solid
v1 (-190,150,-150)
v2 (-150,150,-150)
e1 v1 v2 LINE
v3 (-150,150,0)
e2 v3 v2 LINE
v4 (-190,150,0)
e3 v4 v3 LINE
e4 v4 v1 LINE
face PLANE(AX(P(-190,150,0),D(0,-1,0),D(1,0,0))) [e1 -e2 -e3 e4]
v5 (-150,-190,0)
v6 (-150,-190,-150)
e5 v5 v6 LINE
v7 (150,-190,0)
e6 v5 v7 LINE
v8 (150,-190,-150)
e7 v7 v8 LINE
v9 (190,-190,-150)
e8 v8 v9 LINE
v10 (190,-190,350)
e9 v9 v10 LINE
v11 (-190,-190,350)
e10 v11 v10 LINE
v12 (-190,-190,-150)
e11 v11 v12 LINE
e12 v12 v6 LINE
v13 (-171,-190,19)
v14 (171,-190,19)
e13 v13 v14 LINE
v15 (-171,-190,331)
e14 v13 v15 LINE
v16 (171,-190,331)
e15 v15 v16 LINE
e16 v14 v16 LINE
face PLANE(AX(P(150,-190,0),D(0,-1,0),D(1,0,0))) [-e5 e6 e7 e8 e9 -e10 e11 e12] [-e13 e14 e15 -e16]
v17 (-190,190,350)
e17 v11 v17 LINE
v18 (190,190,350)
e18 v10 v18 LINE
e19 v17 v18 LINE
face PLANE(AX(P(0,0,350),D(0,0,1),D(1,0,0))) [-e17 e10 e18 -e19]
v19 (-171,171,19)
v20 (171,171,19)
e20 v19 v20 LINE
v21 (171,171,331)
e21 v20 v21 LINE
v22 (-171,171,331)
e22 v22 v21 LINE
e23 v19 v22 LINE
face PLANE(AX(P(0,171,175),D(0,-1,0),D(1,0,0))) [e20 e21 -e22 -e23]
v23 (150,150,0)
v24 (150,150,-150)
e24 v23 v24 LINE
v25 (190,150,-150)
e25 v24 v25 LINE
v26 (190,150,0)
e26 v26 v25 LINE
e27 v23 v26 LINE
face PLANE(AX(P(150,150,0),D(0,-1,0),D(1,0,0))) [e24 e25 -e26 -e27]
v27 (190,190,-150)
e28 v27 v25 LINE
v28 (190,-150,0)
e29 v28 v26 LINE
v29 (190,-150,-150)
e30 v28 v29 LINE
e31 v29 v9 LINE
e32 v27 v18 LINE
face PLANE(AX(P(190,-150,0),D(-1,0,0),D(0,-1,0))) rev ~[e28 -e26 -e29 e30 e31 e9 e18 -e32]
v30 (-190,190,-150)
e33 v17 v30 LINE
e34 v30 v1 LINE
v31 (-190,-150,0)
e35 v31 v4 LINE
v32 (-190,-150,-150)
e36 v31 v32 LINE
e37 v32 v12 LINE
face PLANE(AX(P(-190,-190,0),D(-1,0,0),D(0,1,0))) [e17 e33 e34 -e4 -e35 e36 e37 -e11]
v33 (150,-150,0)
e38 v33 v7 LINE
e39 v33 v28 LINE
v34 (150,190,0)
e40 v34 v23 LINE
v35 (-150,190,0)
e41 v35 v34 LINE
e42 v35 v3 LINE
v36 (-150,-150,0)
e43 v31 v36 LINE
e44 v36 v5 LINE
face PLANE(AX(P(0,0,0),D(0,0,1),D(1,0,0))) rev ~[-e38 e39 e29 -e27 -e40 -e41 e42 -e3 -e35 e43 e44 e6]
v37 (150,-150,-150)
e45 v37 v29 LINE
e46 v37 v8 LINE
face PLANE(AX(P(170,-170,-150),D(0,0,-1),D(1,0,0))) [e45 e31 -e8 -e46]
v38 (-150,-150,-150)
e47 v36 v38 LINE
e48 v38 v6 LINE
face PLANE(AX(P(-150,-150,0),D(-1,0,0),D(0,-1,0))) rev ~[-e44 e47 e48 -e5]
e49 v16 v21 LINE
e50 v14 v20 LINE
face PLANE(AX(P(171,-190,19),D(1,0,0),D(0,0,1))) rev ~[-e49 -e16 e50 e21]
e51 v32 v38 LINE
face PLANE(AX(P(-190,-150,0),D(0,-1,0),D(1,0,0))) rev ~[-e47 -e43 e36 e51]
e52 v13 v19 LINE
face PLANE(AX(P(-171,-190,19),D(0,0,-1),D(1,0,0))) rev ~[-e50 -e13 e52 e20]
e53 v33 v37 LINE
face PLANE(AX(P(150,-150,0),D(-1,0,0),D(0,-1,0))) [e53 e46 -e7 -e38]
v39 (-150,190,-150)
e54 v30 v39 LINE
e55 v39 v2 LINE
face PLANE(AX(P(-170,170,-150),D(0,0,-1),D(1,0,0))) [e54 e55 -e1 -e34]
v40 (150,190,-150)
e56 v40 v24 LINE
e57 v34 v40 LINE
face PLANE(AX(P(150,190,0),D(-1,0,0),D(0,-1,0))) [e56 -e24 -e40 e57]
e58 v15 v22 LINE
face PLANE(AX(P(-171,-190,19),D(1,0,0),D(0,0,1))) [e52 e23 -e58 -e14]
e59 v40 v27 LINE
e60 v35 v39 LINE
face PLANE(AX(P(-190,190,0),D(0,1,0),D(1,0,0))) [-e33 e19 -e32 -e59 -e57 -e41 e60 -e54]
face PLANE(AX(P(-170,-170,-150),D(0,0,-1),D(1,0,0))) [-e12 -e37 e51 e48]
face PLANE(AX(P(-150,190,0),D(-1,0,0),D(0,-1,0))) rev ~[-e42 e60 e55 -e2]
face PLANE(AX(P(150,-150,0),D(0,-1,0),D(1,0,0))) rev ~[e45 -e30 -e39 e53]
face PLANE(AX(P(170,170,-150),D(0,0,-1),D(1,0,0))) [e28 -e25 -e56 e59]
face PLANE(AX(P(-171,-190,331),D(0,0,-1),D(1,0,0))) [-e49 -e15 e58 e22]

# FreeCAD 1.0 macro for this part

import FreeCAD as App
import Part
import Sketcher

V = App.Vector
Q = App.Units.Quantity

doc = App.newDocument("Part")
body = doc.addObject("PartDesign::Body", "Body")

# Sketch on XY plane
sketch1 = doc.addObject("Sketcher::SketchObject", "Sketch")
body.addObject(sketch1)
sketch1.AttachmentSupport = (doc.XY_Plane, [""])
sketch1.MapMode = "FlatFace"
sketch1.addGeometry(Part.LineSegment(V(-190, 190, 0), V(-190, -190, 0)), False)
sketch1.addGeometry(Part.LineSegment(V(-190, -190, 0), V(190, -190, 0)), False)
sketch1.addGeometry(Part.LineSegment(V(190, -190, 0), V(190, 190, 0)), False)
sketch1.addGeometry(Part.LineSegment(V(190, 190, 0), V(-190, 190, 0)), False)
sketch1.addConstraint(Sketcher.Constraint("Coincident", 0, 2, 1, 1))
sketch1.addConstraint(Sketcher.Constraint("Coincident", 1, 2, 2, 1))
sketch1.addConstraint(Sketcher.Constraint("Coincident", 2, 2, 3, 1))
sketch1.addConstraint(Sketcher.Constraint("Coincident", 3, 2, 0, 1))
sketch1.addConstraint(Sketcher.Constraint("Vertical", 0))
sketch1.addConstraint(Sketcher.Constraint("Horizontal", 1))
sketch1.addConstraint(Sketcher.Constraint("Vertical", 2))
sketch1.addConstraint(Sketcher.Constraint("Horizontal", 3))
sketch1.addConstraint(Sketcher.Constraint("Symmetric", 0, 2, 2, 2, -1, 1))
sketch1.addConstraint(Sketcher.Constraint("Equal", 3, 0))
sketch1.addConstraint(Sketcher.Constraint("DistanceX", 1, 1, 1, 2, Q("380 mm")))
pad1 = doc.addObject("PartDesign::Pad", "Pad")
body.addObject(pad1)
pad1.Profile = sketch1
pad1.Length = 350

# Sketch on XZ plane
sketch2 = doc.addObject("Sketcher::SketchObject", "Sketch001")
body.addObject(sketch2)
sketch2.AttachmentSupport = (doc.XZ_Plane, [""])
sketch2.MapMode = "FlatFace"
sketch2.AttachmentOffset = App.Placement(V(0, 0, 190), App.Rotation())
sketch2.addGeometry(Part.LineSegment(V(-171, 331, 0), V(-171, 19, 0)), False)
sketch2.addGeometry(Part.LineSegment(V(-171, 19, 0), V(171, 19, 0)), False)
sketch2.addGeometry(Part.LineSegment(V(171, 19, 0), V(171, 331, 0)), False)
sketch2.addGeometry(Part.LineSegment(V(171, 331, 0), V(-171, 331, 0)), False)
sketch2.addConstraint(Sketcher.Constraint("Coincident", 0, 2, 1, 1))
sketch2.addConstraint(Sketcher.Constraint("Coincident", 1, 2, 2, 1))
sketch2.addConstraint(Sketcher.Constraint("Coincident", 2, 2, 3, 1))
sketch2.addConstraint(Sketcher.Constraint("Coincident", 3, 2, 0, 1))
sketch2.addConstraint(Sketcher.Constraint("Vertical", 0))
sketch2.addConstraint(Sketcher.Constraint("Horizontal", 1))
sketch2.addConstraint(Sketcher.Constraint("Vertical", 2))
sketch2.addConstraint(Sketcher.Constraint("Horizontal", 3))
sketch2.addConstraint(Sketcher.Constraint("DistanceX", 1, 1, 1, 2, Q("342 mm")))
sketch2.addConstraint(Sketcher.Constraint("DistanceY", 0, 2, 0, 1, Q("312 mm")))
sketch2.addConstraint(Sketcher.Constraint("DistanceX", 0, 2, -1, 1, Q("171 mm")))
sketch2.addConstraint(Sketcher.Constraint("DistanceY", -1, 1, 0, 2, Q("19 mm")))
pocket1 = doc.addObject("PartDesign::Pocket", "Pocket")
body.addObject(pocket1)
pocket1.Profile = sketch2
pocket1.Length = 361

# Sketch on XY plane
sketch3 = doc.addObject("Sketcher::SketchObject", "Sketch002")
body.addObject(sketch3)
sketch3.AttachmentSupport = (doc.XY_Plane, [""])
sketch3.MapMode = "FlatFace"
sketch3.addGeometry(Part.LineSegment(V(150, -190, 0), V(150, -150, 0)), False)
sketch3.addGeometry(Part.LineSegment(V(150, -150, 0), V(190, -150, 0)), False)
sketch3.addGeometry(Part.LineSegment(V(190, -150, 0), V(190, -190, 0)), False)
sketch3.addGeometry(Part.LineSegment(V(190, -190, 0), V(150, -190, 0)), False)
sketch3.addGeometry(Part.LineSegment(V(-190, -190, 0), V(-190, -150, 0)), False)
sketch3.addGeometry(Part.LineSegment(V(-190, -150, 0), V(-150, -150, 0)), False)
sketch3.addGeometry(Part.LineSegment(V(-150, -150, 0), V(-150, -190, 0)), False)
sketch3.addGeometry(Part.LineSegment(V(-150, -190, 0), V(-190, -190, 0)), False)
sketch3.addGeometry(Part.LineSegment(V(150, 150, 0), V(150, 190, 0)), False)
sketch3.addGeometry(Part.LineSegment(V(150, 190, 0), V(190, 190, 0)), False)
sketch3.addGeometry(Part.LineSegment(V(190, 190, 0), V(190, 150, 0)), False)
sketch3.addGeometry(Part.LineSegment(V(190, 150, 0), V(150, 150, 0)), False)
sketch3.addGeometry(Part.LineSegment(V(-190, 150, 0), V(-190, 190, 0)), False)
sketch3.addGeometry(Part.LineSegment(V(-190, 190, 0), V(-150, 190, 0)), False)
sketch3.addGeometry(Part.LineSegment(V(-150, 190, 0), V(-150, 150, 0)), False)
sketch3.addGeometry(Part.LineSegment(V(-150, 150, 0), V(-190, 150, 0)), False)
sketch3.addConstraint(Sketcher.Constraint("Coincident", 0, 2, 1, 1))
sketch3.addConstraint(Sketcher.Constraint("Coincident", 1, 2, 2, 1))
sketch3.addConstraint(Sketcher.Constraint("Coincident", 2, 2, 3, 1))
sketch3.addConstraint(Sketcher.Constraint("Coincident", 3, 2, 0, 1))
sketch3.addConstraint(Sketcher.Constraint("Coincident", 4, 2, 5, 1))
sketch3.addConstraint(Sketcher.Constraint("Coincident", 5, 2, 6, 1))
sketch3.addConstraint(Sketcher.Constraint("Coincident", 6, 2, 7, 1))
sketch3.addConstraint(Sketcher.Constraint("Coincident", 7, 2, 4, 1))
sketch3.addConstraint(Sketcher.Constraint("Coincident", 8, 2, 9, 1))
sketch3.addConstraint(Sketcher.Constraint("Coincident", 9, 2, 10, 1))
sketch3.addConstraint(Sketcher.Constraint("Coincident", 10, 2, 11, 1))
sketch3.addConstraint(Sketcher.Constraint("Coincident", 11, 2, 8, 1))
sketch3.addConstraint(Sketcher.Constraint("Coincident", 12, 2, 13, 1))
sketch3.addConstraint(Sketcher.Constraint("Coincident", 13, 2, 14, 1))
sketch3.addConstraint(Sketcher.Constraint("Coincident", 14, 2, 15, 1))
sketch3.addConstraint(Sketcher.Constraint("Coincident", 15, 2, 12, 1))
sketch3.addConstraint(Sketcher.Constraint("Vertical", 0))
sketch3.addConstraint(Sketcher.Constraint("Horizontal", 1))
sketch3.addConstraint(Sketcher.Constraint("Vertical", 2))
sketch3.addConstraint(Sketcher.Constraint("Horizontal", 3))
sketch3.addConstraint(Sketcher.Constraint("Vertical", 4))
sketch3.addConstraint(Sketcher.Constraint("Horizontal", 5))
sketch3.addConstraint(Sketcher.Constraint("Vertical", 6))
sketch3.addConstraint(Sketcher.Constraint("Horizontal", 7))
sketch3.addConstraint(Sketcher.Constraint("Vertical", 8))
sketch3.addConstraint(Sketcher.Constraint("Horizontal", 9))
sketch3.addConstraint(Sketcher.Constraint("Vertical", 10))
sketch3.addConstraint(Sketcher.Constraint("Horizontal", 11))
sketch3.addConstraint(Sketcher.Constraint("Vertical", 12))
sketch3.addConstraint(Sketcher.Constraint("Horizontal", 13))
sketch3.addConstraint(Sketcher.Constraint("Vertical", 14))
sketch3.addConstraint(Sketcher.Constraint("Horizontal", 15))
sketch3.addConstraint(Sketcher.Constraint("Symmetric", 6, 2, 8, 2, -1, 1))
sketch3.addConstraint(Sketcher.Constraint("Symmetric", 4, 2, 10, 2, -1, 1))
sketch3.addConstraint(Sketcher.Constraint("Symmetric", 2, 2, 12, 2, -1, 1))
sketch3.addConstraint(Sketcher.Constraint("Symmetric", 0, 2, 14, 2, -1, 1))
sketch3.addConstraint(Sketcher.Constraint("Symmetric", 1, 2, 4, 2, -2))
sketch3.addConstraint(Sketcher.Constraint("Symmetric", 3, 2, 6, 2, -2))
sketch3.addConstraint(Sketcher.Constraint("Equal", 15, 0))
sketch3.addConstraint(Sketcher.Constraint("DistanceX", 1, 1, 1, 2, Q("40 mm")))
sketch3.addConstraint(Sketcher.Constraint("DistanceX", -1, 1, 0, 2, Q("150 mm")))
sketch3.addConstraint(Sketcher.Constraint("DistanceY", 0, 2, -1, 1, Q("150 mm")))
pad2 = doc.addObject("PartDesign::Pad", "Pad001")
body.addObject(pad2)
pad2.Profile = sketch3
pad2.Length = 150
pad2.Reversed = True

doc.recompute()
